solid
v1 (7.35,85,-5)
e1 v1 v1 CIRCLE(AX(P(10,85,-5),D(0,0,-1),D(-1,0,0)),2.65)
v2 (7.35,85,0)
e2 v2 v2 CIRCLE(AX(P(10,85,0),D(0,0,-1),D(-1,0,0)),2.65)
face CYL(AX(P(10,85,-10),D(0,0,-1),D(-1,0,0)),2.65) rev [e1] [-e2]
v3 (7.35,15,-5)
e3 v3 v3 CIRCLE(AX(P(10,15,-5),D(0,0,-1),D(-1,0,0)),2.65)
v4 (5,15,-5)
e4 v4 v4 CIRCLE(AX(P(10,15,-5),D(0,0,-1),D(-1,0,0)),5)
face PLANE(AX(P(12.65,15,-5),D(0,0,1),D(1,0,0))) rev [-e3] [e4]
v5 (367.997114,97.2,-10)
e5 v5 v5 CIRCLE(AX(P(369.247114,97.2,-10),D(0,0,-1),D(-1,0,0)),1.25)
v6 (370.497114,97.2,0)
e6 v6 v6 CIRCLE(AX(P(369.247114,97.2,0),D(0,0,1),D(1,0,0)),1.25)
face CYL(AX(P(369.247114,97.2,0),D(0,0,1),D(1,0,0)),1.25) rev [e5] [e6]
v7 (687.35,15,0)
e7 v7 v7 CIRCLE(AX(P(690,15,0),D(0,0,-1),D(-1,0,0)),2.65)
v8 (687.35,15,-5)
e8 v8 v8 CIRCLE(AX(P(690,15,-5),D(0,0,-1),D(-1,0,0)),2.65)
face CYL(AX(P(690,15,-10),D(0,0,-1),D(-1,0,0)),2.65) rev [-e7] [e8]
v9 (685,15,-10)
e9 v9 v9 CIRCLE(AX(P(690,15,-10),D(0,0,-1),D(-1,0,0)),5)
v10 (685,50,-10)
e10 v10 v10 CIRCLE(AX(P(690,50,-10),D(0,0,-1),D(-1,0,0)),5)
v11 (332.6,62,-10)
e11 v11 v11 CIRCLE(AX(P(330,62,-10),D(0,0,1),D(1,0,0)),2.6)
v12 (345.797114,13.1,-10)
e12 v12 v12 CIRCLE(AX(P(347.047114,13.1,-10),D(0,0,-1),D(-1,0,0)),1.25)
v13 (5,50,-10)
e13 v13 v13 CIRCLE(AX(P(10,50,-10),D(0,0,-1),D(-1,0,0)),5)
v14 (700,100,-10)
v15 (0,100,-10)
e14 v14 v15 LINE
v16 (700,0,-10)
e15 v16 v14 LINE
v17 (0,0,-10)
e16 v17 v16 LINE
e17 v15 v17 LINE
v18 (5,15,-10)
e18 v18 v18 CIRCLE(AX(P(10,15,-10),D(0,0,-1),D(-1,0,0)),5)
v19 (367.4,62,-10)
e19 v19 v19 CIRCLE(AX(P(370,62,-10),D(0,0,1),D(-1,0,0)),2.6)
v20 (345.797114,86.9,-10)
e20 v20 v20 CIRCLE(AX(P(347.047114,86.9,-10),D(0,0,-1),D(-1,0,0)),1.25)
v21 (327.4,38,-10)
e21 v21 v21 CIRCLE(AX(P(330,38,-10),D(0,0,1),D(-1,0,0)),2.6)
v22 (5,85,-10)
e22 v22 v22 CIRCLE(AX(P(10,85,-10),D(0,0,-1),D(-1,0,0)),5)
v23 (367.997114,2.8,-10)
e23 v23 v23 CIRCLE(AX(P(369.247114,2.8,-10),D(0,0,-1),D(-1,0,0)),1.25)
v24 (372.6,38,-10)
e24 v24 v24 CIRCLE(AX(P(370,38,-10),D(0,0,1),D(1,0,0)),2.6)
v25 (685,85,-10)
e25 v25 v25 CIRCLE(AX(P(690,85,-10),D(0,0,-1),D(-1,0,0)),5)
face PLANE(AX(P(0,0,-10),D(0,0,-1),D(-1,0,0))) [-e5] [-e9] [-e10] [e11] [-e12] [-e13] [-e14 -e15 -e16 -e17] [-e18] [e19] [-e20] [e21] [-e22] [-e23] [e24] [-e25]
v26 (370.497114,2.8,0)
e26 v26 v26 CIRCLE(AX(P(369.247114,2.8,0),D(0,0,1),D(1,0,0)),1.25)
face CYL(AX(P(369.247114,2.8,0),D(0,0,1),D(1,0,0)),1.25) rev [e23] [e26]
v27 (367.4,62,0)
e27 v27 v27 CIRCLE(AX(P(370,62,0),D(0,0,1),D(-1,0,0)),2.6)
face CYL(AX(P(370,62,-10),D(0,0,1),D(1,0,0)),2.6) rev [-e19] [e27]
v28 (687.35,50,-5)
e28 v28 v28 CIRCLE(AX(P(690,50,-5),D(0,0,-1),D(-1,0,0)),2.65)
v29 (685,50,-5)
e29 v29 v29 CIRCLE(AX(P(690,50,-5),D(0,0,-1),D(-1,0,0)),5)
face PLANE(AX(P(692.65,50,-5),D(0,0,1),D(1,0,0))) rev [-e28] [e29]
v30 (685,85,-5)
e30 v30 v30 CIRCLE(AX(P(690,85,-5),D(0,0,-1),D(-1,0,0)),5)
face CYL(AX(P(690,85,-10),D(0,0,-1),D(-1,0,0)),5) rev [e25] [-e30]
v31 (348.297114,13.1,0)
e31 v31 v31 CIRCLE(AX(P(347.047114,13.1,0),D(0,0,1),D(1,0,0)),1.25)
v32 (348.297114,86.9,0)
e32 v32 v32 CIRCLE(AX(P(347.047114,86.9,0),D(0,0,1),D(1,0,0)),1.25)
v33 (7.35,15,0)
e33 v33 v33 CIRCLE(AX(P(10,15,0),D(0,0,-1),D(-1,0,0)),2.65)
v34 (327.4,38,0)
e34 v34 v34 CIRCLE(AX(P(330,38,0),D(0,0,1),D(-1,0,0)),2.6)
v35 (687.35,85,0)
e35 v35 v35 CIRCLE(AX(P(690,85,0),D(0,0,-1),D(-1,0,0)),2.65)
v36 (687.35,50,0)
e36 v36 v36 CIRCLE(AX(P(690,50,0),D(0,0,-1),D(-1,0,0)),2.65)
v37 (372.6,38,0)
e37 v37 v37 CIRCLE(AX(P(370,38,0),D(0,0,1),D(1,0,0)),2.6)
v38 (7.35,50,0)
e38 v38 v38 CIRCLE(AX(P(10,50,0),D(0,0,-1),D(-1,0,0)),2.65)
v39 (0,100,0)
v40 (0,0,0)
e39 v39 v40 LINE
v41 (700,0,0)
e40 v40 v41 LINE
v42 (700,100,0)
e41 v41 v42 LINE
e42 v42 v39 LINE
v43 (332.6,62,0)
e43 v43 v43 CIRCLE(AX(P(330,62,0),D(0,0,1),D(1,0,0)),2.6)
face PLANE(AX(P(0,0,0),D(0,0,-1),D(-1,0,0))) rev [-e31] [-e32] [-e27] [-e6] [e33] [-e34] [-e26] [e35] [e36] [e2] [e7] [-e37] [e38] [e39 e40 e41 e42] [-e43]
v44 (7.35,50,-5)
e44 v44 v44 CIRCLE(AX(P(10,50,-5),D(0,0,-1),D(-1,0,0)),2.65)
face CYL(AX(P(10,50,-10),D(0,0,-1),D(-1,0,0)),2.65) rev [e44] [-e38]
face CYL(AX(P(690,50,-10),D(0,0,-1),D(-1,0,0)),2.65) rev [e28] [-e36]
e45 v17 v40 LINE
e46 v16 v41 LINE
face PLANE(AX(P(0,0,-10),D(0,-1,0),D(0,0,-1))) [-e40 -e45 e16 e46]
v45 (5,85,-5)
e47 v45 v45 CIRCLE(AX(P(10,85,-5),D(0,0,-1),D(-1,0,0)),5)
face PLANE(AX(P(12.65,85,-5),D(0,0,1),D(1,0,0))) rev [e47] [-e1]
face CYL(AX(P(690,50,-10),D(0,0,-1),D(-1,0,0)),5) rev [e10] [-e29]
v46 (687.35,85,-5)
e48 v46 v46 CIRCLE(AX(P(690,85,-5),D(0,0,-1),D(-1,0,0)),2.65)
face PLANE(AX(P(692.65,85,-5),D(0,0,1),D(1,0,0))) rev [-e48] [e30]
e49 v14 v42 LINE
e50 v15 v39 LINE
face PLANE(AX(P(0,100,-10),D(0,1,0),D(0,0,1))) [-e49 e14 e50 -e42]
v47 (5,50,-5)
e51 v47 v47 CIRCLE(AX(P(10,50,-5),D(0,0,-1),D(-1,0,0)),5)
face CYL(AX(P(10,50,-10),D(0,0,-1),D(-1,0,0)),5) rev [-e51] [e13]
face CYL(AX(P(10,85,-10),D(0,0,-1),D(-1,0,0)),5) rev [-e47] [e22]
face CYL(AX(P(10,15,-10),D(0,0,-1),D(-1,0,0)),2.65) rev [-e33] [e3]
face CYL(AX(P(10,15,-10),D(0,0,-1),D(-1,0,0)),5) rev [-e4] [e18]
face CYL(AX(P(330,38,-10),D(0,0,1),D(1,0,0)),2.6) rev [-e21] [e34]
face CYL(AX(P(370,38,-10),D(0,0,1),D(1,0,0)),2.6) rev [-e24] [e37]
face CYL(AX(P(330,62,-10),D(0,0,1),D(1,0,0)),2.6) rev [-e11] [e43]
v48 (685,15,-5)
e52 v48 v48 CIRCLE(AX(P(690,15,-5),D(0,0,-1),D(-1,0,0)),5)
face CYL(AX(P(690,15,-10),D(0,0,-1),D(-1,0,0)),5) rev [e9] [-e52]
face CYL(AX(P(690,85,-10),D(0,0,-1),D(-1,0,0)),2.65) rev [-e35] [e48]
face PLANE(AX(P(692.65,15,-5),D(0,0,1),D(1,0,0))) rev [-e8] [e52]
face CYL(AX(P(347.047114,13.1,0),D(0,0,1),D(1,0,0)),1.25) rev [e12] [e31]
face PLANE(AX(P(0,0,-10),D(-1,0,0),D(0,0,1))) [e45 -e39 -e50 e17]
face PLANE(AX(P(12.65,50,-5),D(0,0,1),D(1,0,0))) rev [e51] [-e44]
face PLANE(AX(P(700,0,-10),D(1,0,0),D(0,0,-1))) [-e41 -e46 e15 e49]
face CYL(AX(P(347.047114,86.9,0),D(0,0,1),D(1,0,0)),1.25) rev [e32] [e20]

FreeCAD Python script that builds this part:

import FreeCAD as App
import Part
import Sketcher
Q = App.Units.Quantity


def add_polygon(sketch, points):
    """Adds a closed chain of lines whose ends are joined by coincident constraints."""
    first, n = sketch.GeometryCount, len(points)
    for a, b in zip(points, points[1:] + points[:1]):
        sketch.addGeometry(Part.LineSegment(App.Vector(*a, 0), App.Vector(*b, 0)), False)
    for i in range(n):
        sketch.addConstraint(Sketcher.Constraint("Coincident", first + i, 2, first + (i + 1) % n, 1))

doc = App.newDocument("Part")
params = doc.addObject("Spreadsheet::Sheet", "Params")
for row, (alias, value) in enumerate([
    ("sketch1_width", "700 mm"),
    ("sketch1_height", "100 mm"),
    ("pad1_length", "10 mm"),
    ("sketch2_diameter", "5.2 mm"),
    ("sketch3_diameter", "2.5 mm"),
    ("hole_diameter", "2.5 mm"),
    ("hole_depth", "11.5 mm"),
    ("sketch4_diameter", "5.3 mm"),
    ("hole2_diameter", "5.3 mm"),
    ("hole2_cbore_diameter", "10 mm"),
    ("hole2_cbore_depth", "5 mm"),
], start=1):
    params.set(f"A{row}", alias)
    params.set(f"B{row}", "=" + value)
    params.setAlias(f"B{row}", alias)

body = doc.addObject("PartDesign::Body", "Body")

sketch1 = body.newObject("Sketcher::SketchObject", "Sketch")
sketch1.AttachmentSupport = (doc.getObject("XY_Plane"), [""])
sketch1.MapMode = "FlatFace"
add_polygon(sketch1, [(0, 100), (0, 0), (700, 0), (700, 100)])
sketch1.addConstraint([
    Sketcher.Constraint("Vertical", 0),
    Sketcher.Constraint("Horizontal", 1),
    Sketcher.Constraint("Vertical", 2),
    Sketcher.Constraint("Horizontal", 3),
    Sketcher.Constraint("Coincident", 0, 2, -1, 1),
    Sketcher.Constraint("DistanceX", 1, 1, 1, 2, Q("700 mm")),
    Sketcher.Constraint("DistanceY", 0, 2, 0, 1, Q("100 mm")),
])
sketch1.setExpression("Constraints[9]", "Params.sketch1_width")
sketch1.setExpression("Constraints[10]", "Params.sketch1_height")
pad1 = body.newObject("PartDesign::Pad", "Pad")
pad1.Profile = sketch1
pad1.setExpression("Length", "Params.pad1_length")
pad1.Reversed = True

sketch2 = body.newObject("Sketcher::SketchObject", "Sketch001")
sketch2.AttachmentSupport = (doc.getObject("XY_Plane"), [""])
sketch2.MapMode = "FlatFace"
sketch2.addGeometry([
    Part.Circle(App.Vector(330, 62, 0), App.Vector(0, 0, 1), 2.6),
    Part.Circle(App.Vector(370, 62, 0), App.Vector(0, 0, 1), 2.6),
    Part.Circle(App.Vector(370, 38, 0), App.Vector(0, 0, 1), 2.6),
    Part.Circle(App.Vector(330, 38, 0), App.Vector(0, 0, 1), 2.6),
], False)
sketch2.addConstraint([
    Sketcher.Constraint("Equal", 0, 1),
    Sketcher.Constraint("Equal", 1, 2),
    Sketcher.Constraint("Equal", 2, 3),
    Sketcher.Constraint("Horizontal", 0, 3, 1, 3),
    Sketcher.Constraint("Horizontal", 2, 3, 3, 3),
    Sketcher.Constraint("Vertical", 1, 3, 2, 3),
    Sketcher.Constraint("Vertical", 0, 3, 3, 3),
    Sketcher.Constraint("Diameter", 0, Q("5.2 mm")),
    Sketcher.Constraint("DistanceX", -1, 1, 0, 3, Q("330 mm")),
    Sketcher.Constraint("DistanceY", -1, 1, 0, 3, Q("62 mm")),
    Sketcher.Constraint("DistanceX", -1, 1, 1, 3, Q("370 mm")),
    Sketcher.Constraint("DistanceY", -1, 1, 2, 3, Q("38 mm")),
])
sketch2.setExpression("Constraints[7]", "Params.sketch2_diameter")
pocket1 = body.newObject("PartDesign::Pocket", "Pocket")
pocket1.Profile = sketch2
pocket1.Type = "ThroughAll"

sketch3 = body.newObject("Sketcher::SketchObject", "Sketch002")
sketch3.AttachmentSupport = (doc.getObject("XY_Plane"), [""])
sketch3.MapMode = "FlatFace"
sketch3.addGeometry([
    Part.Circle(App.Vector(369.2, 97.2, 0), App.Vector(0, 0, 1), 1.2),
    Part.Circle(App.Vector(347, 86.9, 0), App.Vector(0, 0, 1), 1.2),
    Part.Circle(App.Vector(347, 13.1, 0), App.Vector(0, 0, 1), 1.2),
    Part.Circle(App.Vector(369.2, 2.8, 0), App.Vector(0, 0, 1), 1.2),
], False)
sketch3.addConstraint([
    Sketcher.Constraint("Equal", 0, 1),
    Sketcher.Constraint("Equal", 1, 2),
    Sketcher.Constraint("Equal", 2, 3),
    Sketcher.Constraint("Vertical", 1, 3, 2, 3),
    Sketcher.Constraint("Vertical", 0, 3, 3, 3),
    Sketcher.Constraint("Diameter", 0, Q("2.5 mm")),
    Sketcher.Constraint("DistanceY", -1, 1, 0, 3, Q("97.2 mm")),
    Sketcher.Constraint("DistanceY", -1, 1, 1, 3, Q("86.9 mm")),
    Sketcher.Constraint("DistanceY", -1, 1, 2, 3, Q("13.1 mm")),
    Sketcher.Constraint("DistanceY", -1, 1, 3, 3, Q("2.8 mm")),
    Sketcher.Constraint("DistanceX", 1, 3, 0, 3, Q("22.2 mm")),
    Sketcher.Constraint("DistanceX", -1, 1, 0, 3, Q("369.247114 mm")),
])
sketch3.setExpression("Constraints[5]", "Params.sketch3_diameter")
doc.recompute()
hole = body.newObject("PartDesign::Hole", "Hole")
hole.Profile = sketch3
hole.ThreadType = "None"
hole.setExpression("Diameter", "Params.hole_diameter")
hole.DepthType = "Dimension"
hole.setExpression("Depth", "Params.hole_depth")
hole.DrillPoint = "Angled"
hole.DrillPointAngle = 118

sketch4 = body.newObject("Sketcher::SketchObject", "Sketch003")
sketch4.AttachmentSupport = (doc.getObject("XY_Plane"), [""])
sketch4.MapMode = "FlatFace"
sketch4.AttachmentOffset = App.Placement(App.Vector(0, 0, -10), App.Rotation())
sketch4.addGeometry([
    Part.Circle(App.Vector(10, 85, 0), App.Vector(0, 0, 1), 2.6),
    Part.Circle(App.Vector(10, 50, 0), App.Vector(0, 0, 1), 2.6),
    Part.Circle(App.Vector(10, 15, 0), App.Vector(0, 0, 1), 2.6),
    Part.Circle(App.Vector(690, 85, 0), App.Vector(0, 0, 1), 2.6),
    Part.Circle(App.Vector(690, 50, 0), App.Vector(0, 0, 1), 2.6),
    Part.Circle(App.Vector(690, 15, 0), App.Vector(0, 0, 1), 2.6),
], False)
sketch4.addConstraint([
    Sketcher.Constraint("Equal", 0, 1),
    Sketcher.Constraint("Equal", 1, 2),
    Sketcher.Constraint("Equal", 2, 3),
    Sketcher.Constraint("Equal", 3, 4),
    Sketcher.Constraint("Equal", 4, 5),
    Sketcher.Constraint("Horizontal", 0, 3, 3, 3),
    Sketcher.Constraint("Horizontal", 1, 3, 4, 3),
    Sketcher.Constraint("Horizontal", 2, 3, 5, 3),
    Sketcher.Constraint("Vertical", 0, 3, 1, 3),
    Sketcher.Constraint("Vertical", 1, 3, 2, 3),
    Sketcher.Constraint("Vertical", 3, 3, 4, 3),
    Sketcher.Constraint("Vertical", 4, 3, 5, 3),
    Sketcher.Constraint("Diameter", 0, Q("5.3 mm")),
    Sketcher.Constraint("DistanceX", -1, 1, 0, 3, Q("10 mm")),
    Sketcher.Constraint("DistanceY", -1, 1, 0, 3, Q("85 mm")),
    Sketcher.Constraint("DistanceY", -1, 1, 1, 3, Q("50 mm")),
    Sketcher.Constraint("DistanceY", -1, 1, 2, 3, Q("15 mm")),
    Sketcher.Constraint("DistanceX", -1, 1, 3, 3, Q("690 mm")),
])
sketch4.setExpression("Constraints[12]", "Params.sketch4_diameter")
doc.recompute()
hole2 = body.newObject("PartDesign::Hole", "Hole001")
hole2.Profile = sketch4
hole2.ThreadType = "None"
hole2.setExpression("Diameter", "Params.hole2_diameter")
hole2.DepthType = "ThroughAll"
hole2.HoleCutType = "Counterbore"
hole2.setExpression("HoleCutDiameter", "Params.hole2_cbore_diameter")
hole2.setExpression("HoleCutDepth", "Params.hole2_cbore_depth")
hole2.Reversed = True

doc.recompute()
